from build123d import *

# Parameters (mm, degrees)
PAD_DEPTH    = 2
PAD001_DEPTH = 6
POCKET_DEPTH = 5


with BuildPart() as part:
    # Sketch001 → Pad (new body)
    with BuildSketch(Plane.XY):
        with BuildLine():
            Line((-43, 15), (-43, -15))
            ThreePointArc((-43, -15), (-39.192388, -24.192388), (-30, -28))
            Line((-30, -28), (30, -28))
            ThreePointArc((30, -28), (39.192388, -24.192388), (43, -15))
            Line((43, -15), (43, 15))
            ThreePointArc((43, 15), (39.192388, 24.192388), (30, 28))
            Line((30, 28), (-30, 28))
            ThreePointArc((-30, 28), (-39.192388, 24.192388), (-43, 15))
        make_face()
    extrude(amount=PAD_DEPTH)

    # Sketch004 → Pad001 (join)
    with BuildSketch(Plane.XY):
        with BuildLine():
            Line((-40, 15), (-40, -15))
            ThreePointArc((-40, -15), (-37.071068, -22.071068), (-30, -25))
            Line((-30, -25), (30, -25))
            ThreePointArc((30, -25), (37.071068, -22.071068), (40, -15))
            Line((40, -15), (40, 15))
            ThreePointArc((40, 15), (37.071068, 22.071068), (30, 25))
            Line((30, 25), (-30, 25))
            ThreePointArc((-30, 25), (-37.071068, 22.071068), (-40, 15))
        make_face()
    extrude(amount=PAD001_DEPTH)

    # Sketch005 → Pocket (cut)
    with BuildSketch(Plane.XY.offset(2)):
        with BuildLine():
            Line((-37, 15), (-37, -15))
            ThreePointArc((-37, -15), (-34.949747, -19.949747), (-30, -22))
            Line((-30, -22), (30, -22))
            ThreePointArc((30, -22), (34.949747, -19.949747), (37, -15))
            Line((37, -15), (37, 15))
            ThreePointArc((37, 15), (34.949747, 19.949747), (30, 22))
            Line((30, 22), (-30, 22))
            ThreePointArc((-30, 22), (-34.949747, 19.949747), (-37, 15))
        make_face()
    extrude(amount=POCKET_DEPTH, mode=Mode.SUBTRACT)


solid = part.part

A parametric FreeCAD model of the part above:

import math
import FreeCAD as App
import Part
import Sketcher
from FreeCAD import Vector
Q = App.Units.Quantity

doc = App.newDocument("Part")
body = doc.addObject("PartDesign::Body", "Body")

# Sketch on XY plane
sketch1 = body.newObject("Sketcher::SketchObject", "Sketch")
sketch1.AttachmentSupport = (doc.getObject("XY_Plane"), [""])
sketch1.MapMode = "FlatFace"
sketch1.addGeometry(Part.LineSegment(Vector(-43, 15, 0), Vector(-43, -15, 0)), False)
sketch1.addGeometry(Part.ArcOfCircle(Part.Circle(Vector(-30, -15, 0), Vector(0, 0, 1), 13), math.radians(-180), math.radians(-90)), False)
sketch1.addGeometry(Part.LineSegment(Vector(-30, -28, 0), Vector(30, -28, 0)), False)
sketch1.addGeometry(Part.ArcOfCircle(Part.Circle(Vector(30, -15, 0), Vector(0, 0, 1), 13), math.radians(-90), math.radians(0)), False)
sketch1.addGeometry(Part.LineSegment(Vector(43, -15, 0), Vector(43, 15, 0)), False)
sketch1.addGeometry(Part.ArcOfCircle(Part.Circle(Vector(30, 15, 0), Vector(0, 0, 1), 13), math.radians(0), math.radians(90)), False)
sketch1.addGeometry(Part.LineSegment(Vector(30, 28, 0), Vector(-30, 28, 0)), False)
sketch1.addGeometry(Part.ArcOfCircle(Part.Circle(Vector(-30, 15, 0), Vector(0, 0, 1), 13), math.radians(90), math.radians(180)), False)
sketch1.addConstraint(Sketcher.Constraint("Tangent", 0, 2, 1, 1))
sketch1.addConstraint(Sketcher.Constraint("Tangent", 1, 2, 2, 1))
sketch1.addConstraint(Sketcher.Constraint("Tangent", 2, 2, 3, 1))
sketch1.addConstraint(Sketcher.Constraint("Tangent", 3, 2, 4, 1))
sketch1.addConstraint(Sketcher.Constraint("Tangent", 4, 2, 5, 1))
sketch1.addConstraint(Sketcher.Constraint("Tangent", 5, 2, 6, 1))
sketch1.addConstraint(Sketcher.Constraint("Tangent", 6, 2, 7, 1))
sketch1.addConstraint(Sketcher.Constraint("Tangent", 7, 2, 0, 1))
sketch1.addConstraint(Sketcher.Constraint("Vertical", 0))
sketch1.addConstraint(Sketcher.Constraint("Horizontal", 2))
sketch1.addConstraint(Sketcher.Constraint("Vertical", 4))
sketch1.addConstraint(Sketcher.Constraint("Horizontal", 6))
sketch1.addConstraint(Sketcher.Constraint("Equal", 1, 3))
sketch1.addConstraint(Sketcher.Constraint("Equal", 3, 5))
sketch1.addConstraint(Sketcher.Constraint("Equal", 5, 7))
sketch1.addConstraint(Sketcher.Constraint("Symmetric", 1, 3, 5, 3, -1, 1))
sketch1.addConstraint(Sketcher.Constraint("Radius", 1, Q("13.000001 mm")))
sketch1.addConstraint(Sketcher.Constraint("DistanceX", 2, 1, 2, 2, Q("60 mm")))
sketch1.addConstraint(Sketcher.Constraint("DistanceY", 0, 2, 0, 1, Q("30 mm")))
pad1 = body.newObject("PartDesign::Pad", "Pad")
pad1.Profile = sketch1
pad1.Length = 2

# Sketch on XY plane
sketch2 = body.newObject("Sketcher::SketchObject", "Sketch001")
sketch2.AttachmentSupport = (doc.getObject("XY_Plane"), [""])
sketch2.MapMode = "FlatFace"
sketch2.addGeometry(Part.LineSegment(Vector(-40, 15, 0), Vector(-40, -15, 0)), False)
sketch2.addGeometry(Part.ArcOfCircle(Part.Circle(Vector(-30, -15, 0), Vector(0, 0, 1), 10), math.radians(180), math.radians(270)), False)
sketch2.addGeometry(Part.LineSegment(Vector(-30, -25, 0), Vector(30, -25, 0)), False)
sketch2.addGeometry(Part.ArcOfCircle(Part.Circle(Vector(30, -15, 0), Vector(0, 0, 1), 10), math.radians(-90), math.radians(0)), False)
sketch2.addGeometry(Part.LineSegment(Vector(40, -15, 0), Vector(40, 15, 0)), False)
sketch2.addGeometry(Part.ArcOfCircle(Part.Circle(Vector(30, 15, 0), Vector(0, 0, 1), 10), math.radians(0), math.radians(90)), False)
sketch2.addGeometry(Part.LineSegment(Vector(30, 25, 0), Vector(-30, 25, 0)), False)
sketch2.addGeometry(Part.ArcOfCircle(Part.Circle(Vector(-30, 15, 0), Vector(0, 0, 1), 10), math.radians(90), math.radians(180)), False)
sketch2.addConstraint(Sketcher.Constraint("Tangent", 0, 2, 1, 1))
sketch2.addConstraint(Sketcher.Constraint("Tangent", 1, 2, 2, 1))
sketch2.addConstraint(Sketcher.Constraint("Tangent", 2, 2, 3, 1))
sketch2.addConstraint(Sketcher.Constraint("Tangent", 3, 2, 4, 1))
sketch2.addConstraint(Sketcher.Constraint("Tangent", 4, 2, 5, 1))
sketch2.addConstraint(Sketcher.Constraint("Tangent", 5, 2, 6, 1))
sketch2.addConstraint(Sketcher.Constraint("Tangent", 6, 2, 7, 1))
sketch2.addConstraint(Sketcher.Constraint("Tangent", 7, 2, 0, 1))
sketch2.addConstraint(Sketcher.Constraint("Vertical", 0))
sketch2.addConstraint(Sketcher.Constraint("Horizontal", 2))
sketch2.addConstraint(Sketcher.Constraint("Vertical", 4))
sketch2.addConstraint(Sketcher.Constraint("Horizontal", 6))
sketch2.addConstraint(Sketcher.Constraint("Equal", 1, 3))
sketch2.addConstraint(Sketcher.Constraint("Equal", 3, 5))
sketch2.addConstraint(Sketcher.Constraint("Equal", 5, 7))
sketch2.addConstraint(Sketcher.Constraint("Symmetric", 1, 3, 5, 3, -1, 1))
sketch2.addConstraint(Sketcher.Constraint("Radius", 1, Q("9.999999 mm")))
sketch2.addConstraint(Sketcher.Constraint("DistanceX", 2, 1, 2, 2, Q("60 mm")))
sketch2.addConstraint(Sketcher.Constraint("DistanceY", 0, 2, 0, 1, Q("30 mm")))
pad2 = body.newObject("PartDesign::Pad", "Pad001")
pad2.Profile = sketch2
pad2.Length = 6

# Sketch on XY plane
sketch3 = body.newObject("Sketcher::SketchObject", "Sketch002")
sketch3.AttachmentSupport = (doc.getObject("XY_Plane"), [""])
sketch3.MapMode = "FlatFace"
sketch3.AttachmentOffset = App.Placement(Vector(0, 0, 2), App.Rotation())
sketch3.addGeometry(Part.LineSegment(Vector(-37, 15, 0), Vector(-37, -15, 0)), False)
sketch3.addGeometry(Part.ArcOfCircle(Part.Circle(Vector(-30, -15, 0), Vector(0, 0, 1), 7), math.radians(-180), math.radians(-90)), False)
sketch3.addGeometry(Part.LineSegment(Vector(-30, -22, 0), Vector(30, -22, 0)), False)
sketch3.addGeometry(Part.ArcOfCircle(Part.Circle(Vector(30, -15, 0), Vector(0, 0, 1), 7), math.radians(-90), math.radians(0)), False)
sketch3.addGeometry(Part.LineSegment(Vector(37, -15, 0), Vector(37, 15, 0)), False)
sketch3.addGeometry(Part.ArcOfCircle(Part.Circle(Vector(30, 15, 0), Vector(0, 0, 1), 7), math.radians(0), math.radians(90)), False)
sketch3.addGeometry(Part.LineSegment(Vector(30, 22, 0), Vector(-30, 22, 0)), False)
sketch3.addGeometry(Part.ArcOfCircle(Part.Circle(Vector(-30, 15, 0), Vector(0, 0, 1), 7), math.radians(90), math.radians(180)), False)
sketch3.addConstraint(Sketcher.Constraint("Tangent", 0, 2, 1, 1))
sketch3.addConstraint(Sketcher.Constraint("Tangent", 1, 2, 2, 1))
sketch3.addConstraint(Sketcher.Constraint("Tangent", 2, 2, 3, 1))
sketch3.addConstraint(Sketcher.Constraint("Tangent", 3, 2, 4, 1))
sketch3.addConstraint(Sketcher.Constraint("Tangent", 4, 2, 5, 1))
sketch3.addConstraint(Sketcher.Constraint("Tangent", 5, 2, 6, 1))
sketch3.addConstraint(Sketcher.Constraint("Tangent", 6, 2, 7, 1))
sketch3.addConstraint(Sketcher.Constraint("Tangent", 7, 2, 0, 1))
sketch3.addConstraint(Sketcher.Constraint("Vertical", 0))
sketch3.addConstraint(Sketcher.Constraint("Horizontal", 2))
sketch3.addConstraint(Sketcher.Constraint("Vertical", 4))
sketch3.addConstraint(Sketcher.Constraint("Horizontal", 6))
sketch3.addConstraint(Sketcher.Constraint("Equal", 1, 3))
sketch3.addConstraint(Sketcher.Constraint("Equal", 3, 5))
sketch3.addConstraint(Sketcher.Constraint("Equal", 5, 7))
sketch3.addConstraint(Sketcher.Constraint("Symmetric", 1, 3, 5, 3, -1, 1))
sketch3.addConstraint(Sketcher.Constraint("Radius", 1, Q("7.000002 mm")))
sketch3.addConstraint(Sketcher.Constraint("DistanceX", 2, 1, 2, 2, Q("60 mm")))
sketch3.addConstraint(Sketcher.Constraint("DistanceY", 0, 2, 0, 1, Q("30 mm")))
pocket1 = body.newObject("PartDesign::Pocket", "Pocket")
pocket1.Profile = sketch3
pocket1.Length = 5
pocket1.Reversed = True

doc.recompute()
